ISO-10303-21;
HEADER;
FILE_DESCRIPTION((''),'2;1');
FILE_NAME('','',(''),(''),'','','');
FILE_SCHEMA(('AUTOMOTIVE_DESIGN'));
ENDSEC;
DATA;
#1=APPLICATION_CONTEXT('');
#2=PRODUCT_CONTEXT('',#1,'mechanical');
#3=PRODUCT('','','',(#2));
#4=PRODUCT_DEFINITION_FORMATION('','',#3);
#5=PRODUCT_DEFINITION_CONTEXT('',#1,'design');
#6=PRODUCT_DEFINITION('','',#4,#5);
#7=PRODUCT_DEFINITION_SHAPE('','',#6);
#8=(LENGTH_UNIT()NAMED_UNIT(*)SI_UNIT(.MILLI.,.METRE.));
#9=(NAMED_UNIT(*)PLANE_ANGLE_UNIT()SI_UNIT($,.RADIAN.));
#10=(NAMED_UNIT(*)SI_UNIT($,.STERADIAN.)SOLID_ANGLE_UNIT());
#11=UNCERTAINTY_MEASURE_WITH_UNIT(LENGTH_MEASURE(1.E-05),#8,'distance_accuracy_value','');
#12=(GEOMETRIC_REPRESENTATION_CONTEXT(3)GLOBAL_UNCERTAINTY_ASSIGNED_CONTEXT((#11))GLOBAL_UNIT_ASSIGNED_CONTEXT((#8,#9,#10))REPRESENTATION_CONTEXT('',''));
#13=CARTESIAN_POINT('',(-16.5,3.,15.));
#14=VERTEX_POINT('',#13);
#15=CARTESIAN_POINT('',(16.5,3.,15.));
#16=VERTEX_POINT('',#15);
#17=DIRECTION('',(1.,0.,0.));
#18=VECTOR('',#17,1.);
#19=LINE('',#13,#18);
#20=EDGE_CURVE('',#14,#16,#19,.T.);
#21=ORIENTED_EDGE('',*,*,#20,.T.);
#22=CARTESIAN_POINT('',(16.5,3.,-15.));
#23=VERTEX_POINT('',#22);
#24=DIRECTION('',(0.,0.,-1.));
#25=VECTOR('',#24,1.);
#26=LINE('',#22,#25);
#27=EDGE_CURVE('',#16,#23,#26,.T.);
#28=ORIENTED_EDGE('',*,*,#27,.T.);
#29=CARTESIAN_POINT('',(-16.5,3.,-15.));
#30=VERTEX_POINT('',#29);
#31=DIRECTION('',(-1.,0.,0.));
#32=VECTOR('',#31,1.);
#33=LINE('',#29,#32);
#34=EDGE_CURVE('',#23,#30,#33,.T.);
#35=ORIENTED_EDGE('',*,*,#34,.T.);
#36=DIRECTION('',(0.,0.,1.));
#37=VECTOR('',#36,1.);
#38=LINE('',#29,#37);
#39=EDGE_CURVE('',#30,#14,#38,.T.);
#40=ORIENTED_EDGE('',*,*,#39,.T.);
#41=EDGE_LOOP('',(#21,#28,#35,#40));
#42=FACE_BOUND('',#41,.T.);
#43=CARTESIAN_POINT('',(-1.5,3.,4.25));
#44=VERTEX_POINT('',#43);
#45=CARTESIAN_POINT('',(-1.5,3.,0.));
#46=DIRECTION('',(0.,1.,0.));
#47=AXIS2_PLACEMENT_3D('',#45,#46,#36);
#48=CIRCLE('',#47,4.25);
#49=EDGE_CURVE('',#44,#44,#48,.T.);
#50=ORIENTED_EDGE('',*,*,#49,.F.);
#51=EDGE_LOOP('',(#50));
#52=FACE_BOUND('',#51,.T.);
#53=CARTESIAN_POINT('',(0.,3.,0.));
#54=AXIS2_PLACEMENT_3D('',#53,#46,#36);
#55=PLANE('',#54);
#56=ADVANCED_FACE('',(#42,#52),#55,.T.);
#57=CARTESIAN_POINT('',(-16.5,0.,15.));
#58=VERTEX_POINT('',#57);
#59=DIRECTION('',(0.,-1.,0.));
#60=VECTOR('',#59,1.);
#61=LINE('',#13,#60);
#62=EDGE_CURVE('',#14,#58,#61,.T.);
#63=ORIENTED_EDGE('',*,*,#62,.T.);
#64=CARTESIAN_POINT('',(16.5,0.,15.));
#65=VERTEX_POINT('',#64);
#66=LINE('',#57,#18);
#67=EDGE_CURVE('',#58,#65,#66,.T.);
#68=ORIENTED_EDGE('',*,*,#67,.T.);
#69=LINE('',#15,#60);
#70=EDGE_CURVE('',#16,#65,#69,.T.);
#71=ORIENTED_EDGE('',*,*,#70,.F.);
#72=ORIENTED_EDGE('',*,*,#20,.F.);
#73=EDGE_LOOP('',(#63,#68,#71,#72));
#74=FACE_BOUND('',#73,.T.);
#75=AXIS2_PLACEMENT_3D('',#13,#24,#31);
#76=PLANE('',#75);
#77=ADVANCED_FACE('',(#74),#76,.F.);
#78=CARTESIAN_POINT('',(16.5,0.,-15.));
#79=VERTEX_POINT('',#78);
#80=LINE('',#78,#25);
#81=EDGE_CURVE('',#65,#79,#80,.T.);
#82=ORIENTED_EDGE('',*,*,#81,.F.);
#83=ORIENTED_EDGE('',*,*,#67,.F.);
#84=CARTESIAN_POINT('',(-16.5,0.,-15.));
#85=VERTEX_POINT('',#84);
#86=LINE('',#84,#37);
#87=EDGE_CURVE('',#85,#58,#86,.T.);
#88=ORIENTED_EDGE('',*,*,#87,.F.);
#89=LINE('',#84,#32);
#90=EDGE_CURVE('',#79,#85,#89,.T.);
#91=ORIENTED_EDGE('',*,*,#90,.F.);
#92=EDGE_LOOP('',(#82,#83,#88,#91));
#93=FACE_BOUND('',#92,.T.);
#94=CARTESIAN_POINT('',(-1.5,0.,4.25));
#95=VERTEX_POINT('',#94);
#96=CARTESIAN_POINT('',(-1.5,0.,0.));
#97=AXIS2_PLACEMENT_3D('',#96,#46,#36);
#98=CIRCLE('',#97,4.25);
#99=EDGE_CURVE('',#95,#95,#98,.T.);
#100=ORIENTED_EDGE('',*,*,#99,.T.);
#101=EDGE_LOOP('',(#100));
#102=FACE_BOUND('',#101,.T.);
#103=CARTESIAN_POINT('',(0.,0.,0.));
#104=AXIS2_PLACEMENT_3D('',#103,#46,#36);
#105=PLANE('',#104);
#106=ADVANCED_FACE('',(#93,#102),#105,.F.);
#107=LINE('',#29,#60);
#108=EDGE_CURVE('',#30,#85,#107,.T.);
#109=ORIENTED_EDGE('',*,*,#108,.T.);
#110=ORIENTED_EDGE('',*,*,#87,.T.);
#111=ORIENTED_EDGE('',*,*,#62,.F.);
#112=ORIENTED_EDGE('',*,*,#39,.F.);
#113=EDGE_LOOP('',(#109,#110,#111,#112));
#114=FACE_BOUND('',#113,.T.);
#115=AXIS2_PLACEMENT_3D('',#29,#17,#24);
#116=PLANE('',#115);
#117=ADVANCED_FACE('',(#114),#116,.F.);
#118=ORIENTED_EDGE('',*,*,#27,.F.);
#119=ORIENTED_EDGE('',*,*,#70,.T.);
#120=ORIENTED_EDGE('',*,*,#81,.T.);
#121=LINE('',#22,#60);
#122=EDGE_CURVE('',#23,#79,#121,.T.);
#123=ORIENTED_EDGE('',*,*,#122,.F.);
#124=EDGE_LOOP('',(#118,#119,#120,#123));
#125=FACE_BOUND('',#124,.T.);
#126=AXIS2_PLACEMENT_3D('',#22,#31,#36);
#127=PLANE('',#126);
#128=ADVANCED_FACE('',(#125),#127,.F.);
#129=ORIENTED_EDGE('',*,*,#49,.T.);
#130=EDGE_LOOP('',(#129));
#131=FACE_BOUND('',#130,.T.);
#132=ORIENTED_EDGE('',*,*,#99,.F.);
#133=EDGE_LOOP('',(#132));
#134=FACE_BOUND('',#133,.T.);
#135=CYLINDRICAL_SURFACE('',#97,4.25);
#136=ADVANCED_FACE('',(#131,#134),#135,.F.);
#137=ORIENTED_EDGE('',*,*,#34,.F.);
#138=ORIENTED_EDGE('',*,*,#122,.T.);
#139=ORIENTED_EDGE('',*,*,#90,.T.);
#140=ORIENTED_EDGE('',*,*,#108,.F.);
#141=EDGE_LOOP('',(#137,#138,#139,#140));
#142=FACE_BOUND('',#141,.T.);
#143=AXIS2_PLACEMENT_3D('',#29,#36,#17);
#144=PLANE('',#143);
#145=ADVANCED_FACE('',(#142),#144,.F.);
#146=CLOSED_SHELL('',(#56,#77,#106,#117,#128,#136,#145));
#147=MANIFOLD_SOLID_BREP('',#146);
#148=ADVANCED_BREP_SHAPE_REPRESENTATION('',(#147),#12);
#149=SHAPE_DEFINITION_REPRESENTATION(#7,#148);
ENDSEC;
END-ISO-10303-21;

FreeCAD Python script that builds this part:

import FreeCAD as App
import Part
import Sketcher
from FreeCAD import Vector
Q = App.Units.Quantity


def add_polygon(sketch, points):
    """Adds a closed chain of lines whose ends are joined by coincident constraints."""
    first, n = sketch.GeometryCount, len(points)
    for a, b in zip(points, points[1:] + points[:1]):
        sketch.addGeometry(Part.LineSegment(App.Vector(*a, 0), App.Vector(*b, 0)), False)
    for i in range(n):
        sketch.addConstraint(Sketcher.Constraint("Coincident", first + i, 2, first + (i + 1) % n, 1))

doc = App.newDocument("Part")
body = doc.addObject("PartDesign::Body", "Body")

# Sketch on XZ plane
sketch1 = body.newObject("Sketcher::SketchObject", "Sketch")
sketch1.AttachmentSupport = (doc.getObject("XZ_Plane"), [""])
sketch1.MapMode = "FlatFace"
add_polygon(sketch1, [(-16, -15), (-16, 15), (16, 15), (16, -15)])  # lines 0-3
sketch1.addConstraint(Sketcher.Constraint("Vertical", 0))
sketch1.addConstraint(Sketcher.Constraint("Horizontal", 1))
sketch1.addConstraint(Sketcher.Constraint("Vertical", 2))
sketch1.addConstraint(Sketcher.Constraint("Horizontal", 3))
sketch1.addConstraint(Sketcher.Constraint("Symmetric", 0, 2, 2, 2, -1, 1))
sketch1.addConstraint(Sketcher.Constraint("DistanceX", 1, 1, 1, 2, Q("33 mm")))
sketch1.addConstraint(Sketcher.Constraint("DistanceY", 0, 1, 0, 2, Q("30 mm")))
pad1 = body.newObject("PartDesign::Pad", "Pad")
pad1.Profile = sketch1
pad1.Length = 3
pad1.Reversed = True

# Sketch on XZ plane
sketch2 = body.newObject("Sketcher::SketchObject", "Sketch001")
sketch2.AttachmentSupport = (doc.getObject("XZ_Plane"), [""])
sketch2.MapMode = "FlatFace"
sketch2.AttachmentOffset = App.Placement(Vector(0, 0, -3), App.Rotation())
sketch2.addGeometry(Part.Circle(Vector(-1.5, 0, 0), Vector(0, 0, 1), 4.2), False)
sketch2.addConstraint(Sketcher.Constraint("PointOnObject", 0, 3, -1))
sketch2.addConstraint(Sketcher.Constraint("Diameter", 0, Q("8.5 mm")))
sketch2.addConstraint(Sketcher.Constraint("DistanceX", 0, 3, -1, 1, Q("1.5 mm")))
pocket1 = body.newObject("PartDesign::Pocket", "Pocket")
pocket1.Profile = sketch2
pocket1.Length = 3
pocket1.Reversed = True

doc.recompute()
